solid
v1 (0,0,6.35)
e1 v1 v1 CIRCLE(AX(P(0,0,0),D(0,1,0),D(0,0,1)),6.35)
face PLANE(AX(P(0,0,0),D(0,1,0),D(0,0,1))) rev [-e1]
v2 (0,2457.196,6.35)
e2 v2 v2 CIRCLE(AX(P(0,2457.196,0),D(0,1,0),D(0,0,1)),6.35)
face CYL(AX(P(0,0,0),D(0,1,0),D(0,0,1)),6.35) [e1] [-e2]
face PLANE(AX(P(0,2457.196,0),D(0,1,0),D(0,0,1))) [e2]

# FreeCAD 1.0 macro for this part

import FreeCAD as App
import Part
import Sketcher
from FreeCAD import Vector
Q = App.Units.Quantity

doc = App.newDocument("Part")
body = doc.addObject("PartDesign::Body", "Body")

# Sketch on XZ plane
sketch1 = body.newObject("Sketcher::SketchObject", "Sketch")
sketch1.AttachmentSupport = (doc.getObject("XZ_Plane"), [""])
sketch1.MapMode = "FlatFace"
sketch1.addGeometry(Part.Circle(Vector(0, 0, 0), Vector(0, 0, 1), 6.35), False)
sketch1.addConstraint(Sketcher.Constraint("Coincident", 0, 3, -1, 1))
sketch1.addConstraint(Sketcher.Constraint("Diameter", 0, Q("0.5 in")))

# Sketch on XY plane
sketch2 = body.newObject("Sketcher::SketchObject", "Sketch001")
sketch2.AttachmentSupport = (doc.getObject("XY_Plane"), [""])
sketch2.MapMode = "FlatFace"
sketch2.addGeometry(Part.LineSegment(Vector(0, 0, 0), Vector(0, 2457.196, 0)), False)
sketch2.addConstraint(Sketcher.Constraint("Vertical", 0))
sketch2.addConstraint(Sketcher.Constraint("Coincident", 0, 1, -1, 1))
sketch2.addConstraint(Sketcher.Constraint("DistanceY", 0, 1, 0, 2, Q("96.74 in")))
doc.recompute()

additivepipe = body.newObject("PartDesign::AdditivePipe", "AdditivePipe")
additivepipe.Profile = sketch1
additivepipe.Spine = (sketch2, ["Edge1"])

doc.recompute()
